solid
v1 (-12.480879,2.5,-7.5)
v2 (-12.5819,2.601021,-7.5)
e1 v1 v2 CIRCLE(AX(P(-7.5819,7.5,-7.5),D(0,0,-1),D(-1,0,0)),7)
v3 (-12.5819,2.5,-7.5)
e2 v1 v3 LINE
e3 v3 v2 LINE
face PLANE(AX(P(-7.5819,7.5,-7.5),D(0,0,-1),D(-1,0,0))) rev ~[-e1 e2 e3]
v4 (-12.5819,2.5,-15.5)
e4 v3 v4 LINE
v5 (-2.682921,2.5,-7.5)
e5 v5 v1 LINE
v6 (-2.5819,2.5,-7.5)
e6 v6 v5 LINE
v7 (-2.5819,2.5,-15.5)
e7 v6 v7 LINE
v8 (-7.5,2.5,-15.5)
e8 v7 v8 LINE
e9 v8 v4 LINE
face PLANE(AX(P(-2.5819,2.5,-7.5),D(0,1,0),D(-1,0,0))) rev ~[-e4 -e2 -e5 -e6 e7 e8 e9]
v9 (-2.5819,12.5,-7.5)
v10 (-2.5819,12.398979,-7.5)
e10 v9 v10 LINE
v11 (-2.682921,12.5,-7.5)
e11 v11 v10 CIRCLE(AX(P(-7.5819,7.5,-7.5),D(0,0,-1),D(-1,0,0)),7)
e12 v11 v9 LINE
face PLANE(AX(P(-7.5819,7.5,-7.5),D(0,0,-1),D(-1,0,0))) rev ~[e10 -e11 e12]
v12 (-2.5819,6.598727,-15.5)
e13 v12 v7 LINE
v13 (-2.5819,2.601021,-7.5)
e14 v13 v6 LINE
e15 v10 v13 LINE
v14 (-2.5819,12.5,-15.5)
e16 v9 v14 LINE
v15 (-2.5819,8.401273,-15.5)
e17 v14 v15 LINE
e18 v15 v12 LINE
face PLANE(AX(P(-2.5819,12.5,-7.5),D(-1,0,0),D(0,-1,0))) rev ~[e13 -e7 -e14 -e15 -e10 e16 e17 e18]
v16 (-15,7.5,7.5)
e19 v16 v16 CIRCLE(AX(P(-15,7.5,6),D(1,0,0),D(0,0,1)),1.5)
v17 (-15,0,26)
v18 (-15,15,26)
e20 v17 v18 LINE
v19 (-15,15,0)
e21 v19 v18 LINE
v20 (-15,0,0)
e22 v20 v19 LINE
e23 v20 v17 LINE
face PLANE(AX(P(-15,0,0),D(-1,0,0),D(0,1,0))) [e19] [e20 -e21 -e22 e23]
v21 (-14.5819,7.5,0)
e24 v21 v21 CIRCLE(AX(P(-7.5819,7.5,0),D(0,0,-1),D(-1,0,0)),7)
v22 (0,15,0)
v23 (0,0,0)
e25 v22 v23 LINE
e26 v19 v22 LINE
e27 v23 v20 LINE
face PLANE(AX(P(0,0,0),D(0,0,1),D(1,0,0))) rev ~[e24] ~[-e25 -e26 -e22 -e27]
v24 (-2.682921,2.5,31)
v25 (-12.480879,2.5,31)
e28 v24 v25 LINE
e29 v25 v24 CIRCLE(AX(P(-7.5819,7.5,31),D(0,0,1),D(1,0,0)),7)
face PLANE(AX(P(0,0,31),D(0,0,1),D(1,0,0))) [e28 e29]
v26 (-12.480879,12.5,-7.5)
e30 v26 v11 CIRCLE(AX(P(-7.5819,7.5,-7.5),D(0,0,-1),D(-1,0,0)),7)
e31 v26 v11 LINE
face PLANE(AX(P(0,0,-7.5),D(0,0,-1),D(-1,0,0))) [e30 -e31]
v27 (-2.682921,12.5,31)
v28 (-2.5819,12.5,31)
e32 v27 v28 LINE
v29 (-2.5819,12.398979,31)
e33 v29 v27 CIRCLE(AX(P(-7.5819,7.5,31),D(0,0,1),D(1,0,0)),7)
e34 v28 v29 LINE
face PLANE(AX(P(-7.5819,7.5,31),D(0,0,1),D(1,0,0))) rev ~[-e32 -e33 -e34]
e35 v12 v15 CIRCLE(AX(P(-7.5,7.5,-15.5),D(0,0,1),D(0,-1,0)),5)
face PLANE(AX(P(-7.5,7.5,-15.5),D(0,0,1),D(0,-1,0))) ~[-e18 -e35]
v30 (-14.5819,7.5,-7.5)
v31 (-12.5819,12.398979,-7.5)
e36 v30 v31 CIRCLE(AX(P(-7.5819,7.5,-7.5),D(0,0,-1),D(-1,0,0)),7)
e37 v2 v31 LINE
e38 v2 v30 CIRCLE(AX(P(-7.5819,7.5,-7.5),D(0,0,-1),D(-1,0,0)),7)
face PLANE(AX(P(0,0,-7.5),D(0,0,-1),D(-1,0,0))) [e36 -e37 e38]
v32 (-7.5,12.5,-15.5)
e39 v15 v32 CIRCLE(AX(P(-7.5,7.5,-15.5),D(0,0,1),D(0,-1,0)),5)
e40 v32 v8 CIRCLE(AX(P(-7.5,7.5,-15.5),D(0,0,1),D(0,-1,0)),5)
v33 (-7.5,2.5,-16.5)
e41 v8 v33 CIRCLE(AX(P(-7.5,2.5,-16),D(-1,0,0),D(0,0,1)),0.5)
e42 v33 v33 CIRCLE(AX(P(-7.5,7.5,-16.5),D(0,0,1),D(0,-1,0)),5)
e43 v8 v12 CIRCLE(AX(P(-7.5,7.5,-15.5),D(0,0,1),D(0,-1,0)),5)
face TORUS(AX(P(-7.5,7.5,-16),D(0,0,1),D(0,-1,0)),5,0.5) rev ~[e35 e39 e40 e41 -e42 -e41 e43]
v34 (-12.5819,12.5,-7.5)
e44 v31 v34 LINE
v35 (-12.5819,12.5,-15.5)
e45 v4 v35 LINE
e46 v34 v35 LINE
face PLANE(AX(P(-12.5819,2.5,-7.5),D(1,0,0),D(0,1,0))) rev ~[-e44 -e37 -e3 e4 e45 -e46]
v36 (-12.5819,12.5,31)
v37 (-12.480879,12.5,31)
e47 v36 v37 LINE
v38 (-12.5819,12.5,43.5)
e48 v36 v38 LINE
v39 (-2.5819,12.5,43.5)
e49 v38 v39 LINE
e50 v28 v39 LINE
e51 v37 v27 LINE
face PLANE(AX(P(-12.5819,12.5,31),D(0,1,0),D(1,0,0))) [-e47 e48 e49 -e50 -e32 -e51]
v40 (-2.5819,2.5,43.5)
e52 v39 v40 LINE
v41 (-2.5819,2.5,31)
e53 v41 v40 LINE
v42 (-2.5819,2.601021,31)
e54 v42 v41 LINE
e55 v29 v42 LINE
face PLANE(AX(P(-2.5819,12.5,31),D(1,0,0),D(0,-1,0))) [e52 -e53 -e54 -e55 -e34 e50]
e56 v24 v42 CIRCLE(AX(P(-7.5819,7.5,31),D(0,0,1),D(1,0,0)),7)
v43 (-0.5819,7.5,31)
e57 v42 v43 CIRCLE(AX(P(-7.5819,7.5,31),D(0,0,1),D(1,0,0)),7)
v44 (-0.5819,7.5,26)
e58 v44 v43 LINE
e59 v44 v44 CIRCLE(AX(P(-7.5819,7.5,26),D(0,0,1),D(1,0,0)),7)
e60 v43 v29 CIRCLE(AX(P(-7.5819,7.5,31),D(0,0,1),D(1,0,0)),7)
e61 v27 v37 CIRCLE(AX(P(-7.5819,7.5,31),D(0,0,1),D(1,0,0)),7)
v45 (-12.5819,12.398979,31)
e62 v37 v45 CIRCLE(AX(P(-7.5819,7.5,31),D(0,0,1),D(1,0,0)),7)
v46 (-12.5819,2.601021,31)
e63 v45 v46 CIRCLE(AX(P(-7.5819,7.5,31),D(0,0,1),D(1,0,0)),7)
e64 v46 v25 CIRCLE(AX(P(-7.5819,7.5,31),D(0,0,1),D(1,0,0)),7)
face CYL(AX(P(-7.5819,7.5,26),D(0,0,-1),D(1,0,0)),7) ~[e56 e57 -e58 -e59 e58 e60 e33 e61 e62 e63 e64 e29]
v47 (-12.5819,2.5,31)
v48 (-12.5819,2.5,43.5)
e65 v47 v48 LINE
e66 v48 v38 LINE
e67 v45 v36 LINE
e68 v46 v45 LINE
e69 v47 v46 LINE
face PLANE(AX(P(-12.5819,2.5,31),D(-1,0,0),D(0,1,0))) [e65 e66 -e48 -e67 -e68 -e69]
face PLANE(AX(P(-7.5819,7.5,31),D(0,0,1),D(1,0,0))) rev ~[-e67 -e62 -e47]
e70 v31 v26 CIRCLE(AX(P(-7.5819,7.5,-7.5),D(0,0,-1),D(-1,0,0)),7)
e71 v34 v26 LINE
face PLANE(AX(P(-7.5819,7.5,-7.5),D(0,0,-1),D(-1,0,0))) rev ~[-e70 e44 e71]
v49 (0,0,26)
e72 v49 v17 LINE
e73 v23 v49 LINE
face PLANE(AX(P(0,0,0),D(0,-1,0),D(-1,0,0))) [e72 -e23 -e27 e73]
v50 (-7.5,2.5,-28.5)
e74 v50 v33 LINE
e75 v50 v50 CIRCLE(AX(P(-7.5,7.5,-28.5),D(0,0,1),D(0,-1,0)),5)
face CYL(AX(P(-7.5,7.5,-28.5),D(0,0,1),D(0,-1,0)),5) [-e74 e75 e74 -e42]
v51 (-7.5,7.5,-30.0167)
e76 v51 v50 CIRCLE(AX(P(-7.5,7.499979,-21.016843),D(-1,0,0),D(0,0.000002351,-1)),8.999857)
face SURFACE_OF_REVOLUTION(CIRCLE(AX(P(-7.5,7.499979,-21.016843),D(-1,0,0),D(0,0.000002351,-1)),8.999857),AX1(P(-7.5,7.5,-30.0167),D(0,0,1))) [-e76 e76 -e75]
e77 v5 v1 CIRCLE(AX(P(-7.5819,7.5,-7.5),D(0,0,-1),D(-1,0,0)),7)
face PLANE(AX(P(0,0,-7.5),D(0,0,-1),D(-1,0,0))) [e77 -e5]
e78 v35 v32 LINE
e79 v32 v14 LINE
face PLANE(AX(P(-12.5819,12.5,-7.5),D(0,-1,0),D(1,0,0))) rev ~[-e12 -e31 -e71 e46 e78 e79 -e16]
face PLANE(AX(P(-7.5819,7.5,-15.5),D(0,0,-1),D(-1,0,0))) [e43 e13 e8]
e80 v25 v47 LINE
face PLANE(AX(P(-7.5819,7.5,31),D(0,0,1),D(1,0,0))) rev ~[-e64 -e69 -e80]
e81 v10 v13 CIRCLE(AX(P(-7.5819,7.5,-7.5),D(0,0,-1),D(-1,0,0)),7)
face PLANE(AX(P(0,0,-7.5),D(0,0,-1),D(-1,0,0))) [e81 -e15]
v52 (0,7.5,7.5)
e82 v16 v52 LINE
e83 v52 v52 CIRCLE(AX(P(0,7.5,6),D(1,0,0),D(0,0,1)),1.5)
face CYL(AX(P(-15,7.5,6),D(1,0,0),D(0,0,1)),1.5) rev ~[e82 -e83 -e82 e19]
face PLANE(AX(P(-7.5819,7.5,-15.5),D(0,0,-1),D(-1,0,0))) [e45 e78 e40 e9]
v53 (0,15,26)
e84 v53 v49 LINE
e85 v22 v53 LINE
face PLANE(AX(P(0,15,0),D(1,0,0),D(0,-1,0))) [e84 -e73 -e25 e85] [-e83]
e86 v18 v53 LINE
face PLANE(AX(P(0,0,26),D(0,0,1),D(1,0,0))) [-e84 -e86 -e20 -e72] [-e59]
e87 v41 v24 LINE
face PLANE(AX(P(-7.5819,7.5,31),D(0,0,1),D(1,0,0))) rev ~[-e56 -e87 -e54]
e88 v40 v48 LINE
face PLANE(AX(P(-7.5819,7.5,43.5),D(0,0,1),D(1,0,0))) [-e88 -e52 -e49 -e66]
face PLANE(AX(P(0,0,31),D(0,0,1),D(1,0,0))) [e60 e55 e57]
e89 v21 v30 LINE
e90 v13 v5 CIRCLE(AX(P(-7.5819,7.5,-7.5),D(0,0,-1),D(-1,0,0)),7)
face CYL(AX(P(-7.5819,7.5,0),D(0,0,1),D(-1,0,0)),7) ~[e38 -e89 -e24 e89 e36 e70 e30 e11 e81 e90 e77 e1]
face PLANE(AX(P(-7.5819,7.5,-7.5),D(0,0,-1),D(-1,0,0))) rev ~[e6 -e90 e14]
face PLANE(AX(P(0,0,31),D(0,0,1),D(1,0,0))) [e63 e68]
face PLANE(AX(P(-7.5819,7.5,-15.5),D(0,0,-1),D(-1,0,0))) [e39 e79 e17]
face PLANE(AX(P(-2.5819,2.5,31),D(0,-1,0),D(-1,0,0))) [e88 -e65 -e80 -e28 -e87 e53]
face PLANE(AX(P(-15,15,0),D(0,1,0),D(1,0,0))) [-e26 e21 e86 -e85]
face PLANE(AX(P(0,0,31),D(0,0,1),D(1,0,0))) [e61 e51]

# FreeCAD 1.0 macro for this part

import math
import FreeCAD as App
import Part
import Sketcher

doc = App.newDocument("Part")
params = doc.addObject("Spreadsheet::Sheet", "Params")
for row, (alias, value) in enumerate([
    ("sketch1_width", "15 mm"),
    ("pad1_length", "26 mm"),
    ("sketch2_diameter", "14 mm"),
    ("pad2_length", "5 mm"),
    ("sketch3_width", "10 mm"),
    ("pad3_length", "12.5 mm"),
    ("sketch4_diameter", "14 mm"),
    ("pad4_length", "7.5 mm"),
    ("sketch5_width", "10 mm"),
    ("pad5_length", "8 mm"),
    ("sketch6_radius", "9 mm"),
    ("sketch6_radius2", "0.5 mm"),
    ("sketch6_height", "12 mm"),
    ("sketch6_width", "5 mm"),
    ("revolution_angle", "360 deg"),
    ("sketch7_diameter", "3 mm"),
    ("hole_diameter", "3 mm"),
], start=1):
    params.set(f"A{row}", alias)
    params.set(f"B{row}", "=" + value)
    params.setAlias(f"B{row}", alias)

body = doc.addObject("PartDesign::Body", "Body")

# Sketch on XY plane
sketch1 = body.newObject("Sketcher::SketchObject", "Sketch")
sketch1.AttachmentSupport = (doc.getObject("XY_Plane"), [""])
sketch1.MapMode = "FlatFace"
sketch1.addGeometry([
    Part.LineSegment(App.Vector(-15, 0, 0), App.Vector(0, 0, 0)),
    Part.LineSegment(App.Vector(0, 0, 0), App.Vector(0, 15, 0)),
    Part.LineSegment(App.Vector(0, 15, 0), App.Vector(-15, 15, 0)),
    Part.LineSegment(App.Vector(-15, 15, 0), App.Vector(-15, 0, 0)),
], False)
sketch1.addConstraint([
    Sketcher.Constraint("Coincident", 0, 2, 1, 1),
    Sketcher.Constraint("Coincident", 1, 2, 2, 1),
    Sketcher.Constraint("Coincident", 2, 2, 3, 1),
    Sketcher.Constraint("Coincident", 3, 2, 0, 1),
    Sketcher.Constraint("Horizontal", 0),
    Sketcher.Constraint("Vertical", 1),
    Sketcher.Constraint("Horizontal", 2),
    Sketcher.Constraint("Vertical", 3),
    Sketcher.Constraint("Coincident", 0, 2, -1, 1),
    Sketcher.Constraint("Equal", 2, 1),
    Sketcher.Constraint("DistanceX", 0, 1, 0, 2, 15.0),
])
sketch1.setExpression("Constraints[10]", "Params.sketch1_width")
pad1 = body.newObject("PartDesign::Pad", "Pad")
pad1.Profile = sketch1
pad1.setExpression("Length", "Params.pad1_length")

# Sketch on XY plane
sketch2 = body.newObject("Sketcher::SketchObject", "Sketch001")
sketch2.AttachmentSupport = (doc.getObject("XY_Plane"), [""])
sketch2.MapMode = "FlatFace"
sketch2.AttachmentOffset = App.Placement(App.Vector(0, 0, 26), App.Rotation())
sketch2.addGeometry(Part.Circle(App.Vector(-8, 8, 0), App.Vector(0, 0, 1), 7), False)
sketch2.addConstraint([
    Sketcher.Constraint("Diameter", 0, 14.0),
    Sketcher.Constraint("DistanceY", -1, 1, 0, 3, 7.5),
    Sketcher.Constraint("DistanceX", 0, 3, -1, 1, 7.582),
])
sketch2.setExpression("Constraints[0]", "Params.sketch2_diameter")
pad2 = body.newObject("PartDesign::Pad", "Pad001")
pad2.Profile = sketch2
pad2.setExpression("Length", "Params.pad2_length")

# Sketch on XY plane
sketch3 = body.newObject("Sketcher::SketchObject", "Sketch002")
sketch3.AttachmentSupport = (doc.getObject("XY_Plane"), [""])
sketch3.MapMode = "FlatFace"
sketch3.AttachmentOffset = App.Placement(App.Vector(0, 0, 31), App.Rotation())
sketch3.addGeometry([
    Part.LineSegment(App.Vector(-3, 12, 0), App.Vector(-13, 12, 0)),
    Part.LineSegment(App.Vector(-13, 12, 0), App.Vector(-13, 2, 0)),
    Part.LineSegment(App.Vector(-13, 2, 0), App.Vector(-3, 2, 0)),
    Part.LineSegment(App.Vector(-3, 2, 0), App.Vector(-3, 12, 0)),
], False)
sketch3.addConstraint([
    Sketcher.Constraint("Coincident", 0, 2, 1, 1),
    Sketcher.Constraint("Coincident", 1, 2, 2, 1),
    Sketcher.Constraint("Coincident", 2, 2, 3, 1),
    Sketcher.Constraint("Coincident", 3, 2, 0, 1),
    Sketcher.Constraint("Horizontal", 0),
    Sketcher.Constraint("Vertical", 1),
    Sketcher.Constraint("Horizontal", 2),
    Sketcher.Constraint("Vertical", 3),
    Sketcher.Constraint("Equal", 2, 1),
    Sketcher.Constraint("DistanceX", 0, 2, 0, 1, 10.0),
    Sketcher.Constraint("DistanceY", -1, 1, 0, 2, 12.5),
    Sketcher.Constraint("DistanceX", 0, 2, -1, 1, 12.582),
])
sketch3.setExpression("Constraints[9]", "Params.sketch3_width")
pad3 = body.newObject("PartDesign::Pad", "Pad002")
pad3.Profile = sketch3
pad3.setExpression("Length", "Params.pad3_length")

# Sketch on XY plane
sketch4 = body.newObject("Sketcher::SketchObject", "Sketch003")
sketch4.AttachmentSupport = (doc.getObject("XY_Plane"), [""])
sketch4.MapMode = "FlatFace"
sketch4.addGeometry(Part.Circle(App.Vector(-8, 8, 0), App.Vector(0, 0, 1), 7), False)
sketch4.addConstraint([
    Sketcher.Constraint("Diameter", 0, 14.0),
    Sketcher.Constraint("DistanceY", -1, 1, 0, 3, 7.5),
    Sketcher.Constraint("DistanceX", 0, 3, -1, 1, 7.582),
])
sketch4.setExpression("Constraints[0]", "Params.sketch4_diameter")
pad4 = body.newObject("PartDesign::Pad", "Pad003")
pad4.Profile = sketch4
pad4.setExpression("Length", "Params.pad4_length")
pad4.Reversed = True

# Sketch on XY plane
sketch5 = body.newObject("Sketcher::SketchObject", "Sketch004")
sketch5.AttachmentSupport = (doc.getObject("XY_Plane"), [""])
sketch5.MapMode = "FlatFace"
sketch5.AttachmentOffset = App.Placement(App.Vector(0, 0, -7.5), App.Rotation())
sketch5.addGeometry([
    Part.LineSegment(App.Vector(-3, 12, 0), App.Vector(-3, 2, 0)),
    Part.LineSegment(App.Vector(-3, 2, 0), App.Vector(-13, 2, 0)),
    Part.LineSegment(App.Vector(-13, 2, 0), App.Vector(-13, 12, 0)),
    Part.LineSegment(App.Vector(-13, 12, 0), App.Vector(-3, 12, 0)),
], False)
sketch5.addConstraint([
    Sketcher.Constraint("Coincident", 0, 2, 1, 1),
    Sketcher.Constraint("Coincident", 1, 2, 2, 1),
    Sketcher.Constraint("Coincident", 2, 2, 3, 1),
    Sketcher.Constraint("Coincident", 3, 2, 0, 1),
    Sketcher.Constraint("Vertical", 0),
    Sketcher.Constraint("Horizontal", 1),
    Sketcher.Constraint("Vertical", 2),
    Sketcher.Constraint("Horizontal", 3),
    Sketcher.Constraint("Equal", 3, 0),
    Sketcher.Constraint("DistanceX", 1, 2, 1, 1, 10.0),
    Sketcher.Constraint("DistanceY", -1, 1, 0, 2, 2.5),
    Sketcher.Constraint("DistanceX", 0, 2, -1, 1, 2.582),
])
sketch5.setExpression("Constraints[9]", "Params.sketch5_width")
pad5 = body.newObject("PartDesign::Pad", "Pad004")
pad5.Profile = sketch5
pad5.setExpression("Length", "Params.pad5_length")
pad5.Reversed = True

# Sketch on YZ plane
sketch6 = body.newObject("Sketcher::SketchObject", "Sketch005")
sketch6.AttachmentSupport = (doc.getObject("YZ_Plane"), [""])
sketch6.MapMode = "FlatFace"
sketch6.AttachmentOffset = App.Placement(App.Vector(0, 0, -7.5), App.Rotation())
sketch6.addGeometry([
    Part.LineSegment(App.Vector(2.5, -15.5, 0), App.Vector(7.5, -15.5, 0)),  # 0
    Part.LineSegment(App.Vector(7.5, -15.5, 0), App.Vector(7.5, -30, 0)),  # 1
    Part.ArcOfCircle(Part.Circle(App.Vector(7.5, -21, 0), App.Vector(0, 0, 1), 9), math.radians(-124), math.radians(-90)),  # 2
    Part.LineSegment(App.Vector(2.5, -28.5, 0), App.Vector(2.5, -16.5, 0)),  # 3
    Part.ArcOfCircle(Part.Circle(App.Vector(2.5, -16, 0), App.Vector(0, 0, 1), 0.5), math.radians(-90), math.radians(90)),  # 4
], False)
sketch6.addGeometry(Part.LineSegment(App.Vector(7.5, -30, 0), App.Vector(7.5, -15.5, 0)), True)  # axis
sketch6.addConstraint([
    Sketcher.Constraint("Coincident", 0, 2, 1, 1),
    Sketcher.Constraint("Coincident", 1, 2, 2, 2),
    Sketcher.Constraint("Coincident", 2, 1, 3, 1),
    Sketcher.Constraint("Coincident", 3, 2, 4, 1),
    Sketcher.Constraint("Tangent", 4, 2, 0, 1),
    Sketcher.Constraint("Horizontal", 0),
    Sketcher.Constraint("Vertical", 1),
    Sketcher.Constraint("Vertical", 3),
    Sketcher.Constraint("Vertical", 5),
    Sketcher.Constraint("Coincident", 5, 1, 1, 2),
    Sketcher.Constraint("Horizontal", 4, 2, 5, 2),
    Sketcher.Constraint("Vertical", 2, 3, 0, 2),
    Sketcher.Constraint("Vertical", 4, 3, 2, 1),
    Sketcher.Constraint("Radius", 2, 9.0),
    Sketcher.Constraint("Radius", 4, 0.5),
    Sketcher.Constraint("DistanceY", 3, 1, 3, 2, 12.0),
    Sketcher.Constraint("DistanceX", 0, 1, 0, 2, 5.0),
    Sketcher.Constraint("DistanceY", 4, 3, -1, 1, 16.0),
    Sketcher.Constraint("DistanceX", -1, 1, 2, 3, 7.5),
])
sketch6.setExpression("Constraints[13]", "Params.sketch6_radius")
sketch6.setExpression("Constraints[14]", "Params.sketch6_radius2")
sketch6.setExpression("Constraints[15]", "Params.sketch6_height")
sketch6.setExpression("Constraints[16]", "Params.sketch6_width")
revolution = body.newObject("PartDesign::Revolution", "Revolution")
revolution.Profile = sketch6
revolution.ReferenceAxis = (sketch6, ["Axis0"])
revolution.setExpression("Angle", "Params.revolution_angle")

# Sketch on YZ plane
sketch7 = body.newObject("Sketcher::SketchObject", "Sketch006")
sketch7.AttachmentSupport = (doc.getObject("YZ_Plane"), [""])
sketch7.MapMode = "FlatFace"
sketch7.AttachmentOffset = App.Placement(App.Vector(0, 0, -15), App.Rotation())
sketch7.addGeometry(Part.Circle(App.Vector(7.5, 6, 0), App.Vector(0, 0, 1), 1.5), False)
sketch7.addConstraint([
    Sketcher.Constraint("Diameter", 0, 3.0),
    Sketcher.Constraint("DistanceY", -1, 1, 0, 3, 6.0),
    Sketcher.Constraint("DistanceX", -1, 1, 0, 3, 7.5),
])
sketch7.setExpression("Constraints[0]", "Params.sketch7_diameter")
doc.recompute()
hole = body.newObject("PartDesign::Hole", "Hole")
hole.Profile = sketch7
hole.ThreadType = "None"
hole.setExpression("Diameter", "Params.hole_diameter")
hole.DepthType = "ThroughAll"
hole.Reversed = True

doc.recompute()
